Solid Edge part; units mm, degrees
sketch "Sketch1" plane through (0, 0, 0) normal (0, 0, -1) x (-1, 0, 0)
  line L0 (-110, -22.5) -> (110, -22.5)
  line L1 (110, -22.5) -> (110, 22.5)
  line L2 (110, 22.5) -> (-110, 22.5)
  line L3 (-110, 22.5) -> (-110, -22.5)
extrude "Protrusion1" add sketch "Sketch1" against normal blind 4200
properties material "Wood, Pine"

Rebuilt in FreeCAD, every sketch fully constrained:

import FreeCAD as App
import Part
import Sketcher
from FreeCAD import Vector
Q = App.Units.Quantity


def add_polygon(sketch, points):
    """Adds a closed chain of lines whose ends are joined by coincident constraints."""
    first, n = sketch.GeometryCount, len(points)
    for a, b in zip(points, points[1:] + points[:1]):
        sketch.addGeometry(Part.LineSegment(App.Vector(*a, 0), App.Vector(*b, 0)), False)
    for i in range(n):
        sketch.addConstraint(Sketcher.Constraint("Coincident", first + i, 2, first + (i + 1) % n, 1))

doc = App.newDocument("Part")
body = doc.addObject("PartDesign::Body", "Body")

sketch1 = body.newObject("Sketcher::SketchObject", "Sketch")
sketch1.AttachmentSupport = (doc.getObject("XY_Plane"), [""])
sketch1.MapMode = "FlatFace"
add_polygon(sketch1, [(110, 22), (110, -22), (-110, -22), (-110, 22)])
sketch1.addConstraint([
    Sketcher.Constraint("Vertical", 0),
    Sketcher.Constraint("Horizontal", 1),
    Sketcher.Constraint("Vertical", 2),
    Sketcher.Constraint("Horizontal", 3),
    Sketcher.Constraint("Symmetric", 0, 2, 2, 2, -1, 1),
    Sketcher.Constraint("DistanceX", 1, 2, 1, 1, Q("220 mm")),
    Sketcher.Constraint("DistanceY", 0, 2, 0, 1, Q("45 mm")),
])
pad1 = body.newObject("PartDesign::Pad", "Pad")
pad1.Profile = sketch1
pad1.Length = 4200

doc.recompute()
